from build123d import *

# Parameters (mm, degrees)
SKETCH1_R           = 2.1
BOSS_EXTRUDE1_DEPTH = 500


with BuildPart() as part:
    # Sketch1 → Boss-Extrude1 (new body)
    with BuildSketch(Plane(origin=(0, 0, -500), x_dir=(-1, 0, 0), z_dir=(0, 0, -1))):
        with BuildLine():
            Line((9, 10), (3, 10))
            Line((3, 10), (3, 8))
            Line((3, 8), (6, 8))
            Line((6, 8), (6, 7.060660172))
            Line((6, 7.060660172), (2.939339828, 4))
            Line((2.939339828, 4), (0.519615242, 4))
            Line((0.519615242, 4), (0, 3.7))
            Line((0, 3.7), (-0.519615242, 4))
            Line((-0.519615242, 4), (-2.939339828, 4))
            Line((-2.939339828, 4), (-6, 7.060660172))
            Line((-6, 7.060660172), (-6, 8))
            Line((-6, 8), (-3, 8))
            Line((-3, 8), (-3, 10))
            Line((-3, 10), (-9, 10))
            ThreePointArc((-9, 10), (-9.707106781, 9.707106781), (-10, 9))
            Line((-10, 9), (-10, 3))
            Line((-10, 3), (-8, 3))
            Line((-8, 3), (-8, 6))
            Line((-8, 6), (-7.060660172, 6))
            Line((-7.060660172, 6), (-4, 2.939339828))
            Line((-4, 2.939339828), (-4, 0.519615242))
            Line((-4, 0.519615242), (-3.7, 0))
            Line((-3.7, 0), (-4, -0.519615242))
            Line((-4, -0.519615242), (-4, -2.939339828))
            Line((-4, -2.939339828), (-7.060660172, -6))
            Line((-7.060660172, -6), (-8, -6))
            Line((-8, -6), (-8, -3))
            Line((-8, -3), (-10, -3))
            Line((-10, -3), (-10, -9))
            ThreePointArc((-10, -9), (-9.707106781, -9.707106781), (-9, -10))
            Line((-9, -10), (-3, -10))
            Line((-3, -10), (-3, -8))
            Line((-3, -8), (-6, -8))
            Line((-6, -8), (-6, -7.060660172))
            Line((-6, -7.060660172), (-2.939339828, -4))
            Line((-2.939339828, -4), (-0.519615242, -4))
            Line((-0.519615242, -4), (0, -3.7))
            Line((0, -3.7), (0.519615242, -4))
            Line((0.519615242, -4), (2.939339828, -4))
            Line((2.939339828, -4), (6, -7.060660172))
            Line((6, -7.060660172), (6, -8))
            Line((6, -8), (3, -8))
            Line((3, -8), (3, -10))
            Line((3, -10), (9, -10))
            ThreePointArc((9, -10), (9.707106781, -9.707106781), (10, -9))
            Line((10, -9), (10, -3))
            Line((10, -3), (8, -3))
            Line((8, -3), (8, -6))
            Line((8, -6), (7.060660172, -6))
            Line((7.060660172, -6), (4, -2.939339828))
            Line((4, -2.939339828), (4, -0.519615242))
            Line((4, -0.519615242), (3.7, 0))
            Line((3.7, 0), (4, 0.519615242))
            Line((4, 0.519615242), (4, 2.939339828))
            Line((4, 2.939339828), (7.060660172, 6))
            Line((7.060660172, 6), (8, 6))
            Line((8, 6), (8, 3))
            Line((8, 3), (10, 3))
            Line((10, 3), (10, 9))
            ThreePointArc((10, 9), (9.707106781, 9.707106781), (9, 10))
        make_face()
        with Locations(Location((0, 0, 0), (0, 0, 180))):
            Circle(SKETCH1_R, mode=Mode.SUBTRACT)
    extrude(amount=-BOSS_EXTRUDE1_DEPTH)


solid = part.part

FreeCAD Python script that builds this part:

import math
import FreeCAD as App
import Part
import Sketcher

V = App.Vector
Q = App.Units.Quantity

doc = App.newDocument("Part")
params = doc.addObject("Spreadsheet::Sheet", "Params")
for row, (alias, value) in enumerate([
    ("sketch1_radius", "1 mm"),
    ("sketch1_diameter", "4.2 mm"),
    ("sketch1_width", "6 mm"),
    ("sketch1_width2", "3 mm"),
    ("sketch1_width3", "2 mm"),
    ("pad1_length", "500 mm"),
], start=1):
    params.set(f"A{row}", alias)
    params.set(f"B{row}", "=" + value)
    params.setAlias(f"B{row}", alias)

body = doc.addObject("PartDesign::Body", "Body")

sketch1 = body.newObject("Sketcher::SketchObject", "Sketch")
sketch1.AttachmentSupport = (doc.getObject("XY_Plane"), [""])
sketch1.MapMode = "FlatFace"
sketch1.AttachmentOffset = App.Placement(V(0, 0, -500), App.Rotation())
sketch1.addGeometry([
    Part.LineSegment(V(-9, 10, 0), V(-3, 10, 0)),
    Part.LineSegment(V(-3, 10, 0), V(-3, 8, 0)),
    Part.LineSegment(V(-3, 8, 0), V(-6, 8, 0)),
    Part.LineSegment(V(-6, 8, 0), V(-6, 7.1, 0)),
    Part.LineSegment(V(-6, 7.1, 0), V(-2.9, 4, 0)),
    Part.LineSegment(V(-2.9, 4, 0), V(-0.5, 4, 0)),
    Part.LineSegment(V(-0.5, 4, 0), V(0, 3.7, 0)),
    Part.LineSegment(V(0, 3.7, 0), V(0.5, 4, 0)),
    Part.LineSegment(V(0.5, 4, 0), V(2.9, 4, 0)),
    Part.LineSegment(V(2.9, 4, 0), V(6, 7.1, 0)),
    Part.LineSegment(V(6, 7.1, 0), V(6, 8, 0)),
    Part.LineSegment(V(6, 8, 0), V(3, 8, 0)),
    Part.LineSegment(V(3, 8, 0), V(3, 10, 0)),
    Part.LineSegment(V(3, 10, 0), V(9, 10, 0)),
    Part.ArcOfCircle(Part.Circle(V(9, 9, 0), V(0, 0, 1), 1), math.radians(0), math.radians(90)),
    Part.LineSegment(V(10, 9, 0), V(10, 3, 0)),
    Part.LineSegment(V(10, 3, 0), V(8, 3, 0)),
    Part.LineSegment(V(8, 3, 0), V(8, 6, 0)),
    Part.LineSegment(V(8, 6, 0), V(7.1, 6, 0)),
    Part.LineSegment(V(7.1, 6, 0), V(4, 2.9, 0)),
    Part.LineSegment(V(4, 2.9, 0), V(4, 0.5, 0)),
    Part.LineSegment(V(4, 0.5, 0), V(3.7, 0, 0)),
    Part.LineSegment(V(3.7, 0, 0), V(4, -0.5, 0)),
    Part.LineSegment(V(4, -0.5, 0), V(4, -2.9, 0)),
    Part.LineSegment(V(4, -2.9, 0), V(7.1, -6, 0)),
    Part.LineSegment(V(7.1, -6, 0), V(8, -6, 0)),
    Part.LineSegment(V(8, -6, 0), V(8, -3, 0)),
    Part.LineSegment(V(8, -3, 0), V(10, -3, 0)),
    Part.LineSegment(V(10, -3, 0), V(10, -9, 0)),
    Part.ArcOfCircle(Part.Circle(V(9, -9, 0), V(0, 0, 1), 1), math.radians(-90), math.radians(0)),
    Part.LineSegment(V(9, -10, 0), V(3, -10, 0)),
    Part.LineSegment(V(3, -10, 0), V(3, -8, 0)),
    Part.LineSegment(V(3, -8, 0), V(6, -8, 0)),
    Part.LineSegment(V(6, -8, 0), V(6, -7.1, 0)),
    Part.LineSegment(V(6, -7.1, 0), V(2.9, -4, 0)),
    Part.LineSegment(V(2.9, -4, 0), V(0.5, -4, 0)),
    Part.LineSegment(V(0.5, -4, 0), V(0, -3.7, 0)),
    Part.LineSegment(V(0, -3.7, 0), V(-0.5, -4, 0)),
    Part.LineSegment(V(-0.5, -4, 0), V(-2.9, -4, 0)),
    Part.LineSegment(V(-2.9, -4, 0), V(-6, -7.1, 0)),
    Part.LineSegment(V(-6, -7.1, 0), V(-6, -8, 0)),
    Part.LineSegment(V(-6, -8, 0), V(-3, -8, 0)),
    Part.LineSegment(V(-3, -8, 0), V(-3, -10, 0)),
    Part.LineSegment(V(-3, -10, 0), V(-9, -10, 0)),
    Part.ArcOfCircle(Part.Circle(V(-9, -9, 0), V(0, 0, 1), 1), math.radians(-180), math.radians(-90)),
    Part.LineSegment(V(-10, -9, 0), V(-10, -3, 0)),
    Part.LineSegment(V(-10, -3, 0), V(-8, -3, 0)),
    Part.LineSegment(V(-8, -3, 0), V(-8, -6, 0)),
    Part.LineSegment(V(-8, -6, 0), V(-7.1, -6, 0)),
    Part.LineSegment(V(-7.1, -6, 0), V(-4, -2.9, 0)),
    Part.LineSegment(V(-4, -2.9, 0), V(-4, -0.5, 0)),
    Part.LineSegment(V(-4, -0.5, 0), V(-3.7, 0, 0)),
    Part.LineSegment(V(-3.7, 0, 0), V(-4, 0.5, 0)),
    Part.LineSegment(V(-4, 0.5, 0), V(-4, 2.9, 0)),
    Part.LineSegment(V(-4, 2.9, 0), V(-7.1, 6, 0)),
    Part.LineSegment(V(-7.1, 6, 0), V(-8, 6, 0)),
    Part.LineSegment(V(-8, 6, 0), V(-8, 3, 0)),
    Part.LineSegment(V(-8, 3, 0), V(-10, 3, 0)),
    Part.LineSegment(V(-10, 3, 0), V(-10, 9, 0)),
    Part.ArcOfCircle(Part.Circle(V(-9, 9, 0), V(0, 0, 1), 1), math.radians(90), math.radians(180)),
    Part.Circle(V(0, 0, 0), V(0, 0, 1), 2.1),
], False)
sketch1.addConstraint([
    Sketcher.Constraint("Coincident", 0, 2, 1, 1),
    Sketcher.Constraint("Coincident", 1, 2, 2, 1),
    Sketcher.Constraint("Coincident", 2, 2, 3, 1),
    Sketcher.Constraint("Coincident", 3, 2, 4, 1),
    Sketcher.Constraint("Coincident", 4, 2, 5, 1),
    Sketcher.Constraint("Coincident", 5, 2, 6, 1),
    Sketcher.Constraint("Coincident", 6, 2, 7, 1),
    Sketcher.Constraint("Coincident", 7, 2, 8, 1),
    Sketcher.Constraint("Coincident", 8, 2, 9, 1),
    Sketcher.Constraint("Coincident", 9, 2, 10, 1),
    Sketcher.Constraint("Coincident", 10, 2, 11, 1),
    Sketcher.Constraint("Coincident", 11, 2, 12, 1),
    Sketcher.Constraint("Coincident", 12, 2, 13, 1),
    Sketcher.Constraint("Tangent", 13, 2, 14, 2),
    Sketcher.Constraint("Tangent", 14, 1, 15, 1),
    Sketcher.Constraint("Coincident", 15, 2, 16, 1),
    Sketcher.Constraint("Coincident", 16, 2, 17, 1),
    Sketcher.Constraint("Coincident", 17, 2, 18, 1),
    Sketcher.Constraint("Coincident", 18, 2, 19, 1),
    Sketcher.Constraint("Coincident", 19, 2, 20, 1),
    Sketcher.Constraint("Coincident", 20, 2, 21, 1),
    Sketcher.Constraint("Coincident", 21, 2, 22, 1),
    Sketcher.Constraint("Coincident", 22, 2, 23, 1),
    Sketcher.Constraint("Coincident", 23, 2, 24, 1),
    Sketcher.Constraint("Coincident", 24, 2, 25, 1),
    Sketcher.Constraint("Coincident", 25, 2, 26, 1),
    Sketcher.Constraint("Coincident", 26, 2, 27, 1),
    Sketcher.Constraint("Coincident", 27, 2, 28, 1),
    Sketcher.Constraint("Tangent", 28, 2, 29, 2),
    Sketcher.Constraint("Tangent", 29, 1, 30, 1),
    Sketcher.Constraint("Coincident", 30, 2, 31, 1),
    Sketcher.Constraint("Coincident", 31, 2, 32, 1),
    Sketcher.Constraint("Coincident", 32, 2, 33, 1),
    Sketcher.Constraint("Coincident", 33, 2, 34, 1),
    Sketcher.Constraint("Coincident", 34, 2, 35, 1),
    Sketcher.Constraint("Coincident", 35, 2, 36, 1),
    Sketcher.Constraint("Coincident", 36, 2, 37, 1),
    Sketcher.Constraint("Coincident", 37, 2, 38, 1),
    Sketcher.Constraint("Coincident", 38, 2, 39, 1),
    Sketcher.Constraint("Coincident", 39, 2, 40, 1),
    Sketcher.Constraint("Coincident", 40, 2, 41, 1),
    Sketcher.Constraint("Coincident", 41, 2, 42, 1),
    Sketcher.Constraint("Coincident", 42, 2, 43, 1),
    Sketcher.Constraint("Tangent", 43, 2, 44, 2),
    Sketcher.Constraint("Tangent", 44, 1, 45, 1),
    Sketcher.Constraint("Coincident", 45, 2, 46, 1),
    Sketcher.Constraint("Coincident", 46, 2, 47, 1),
    Sketcher.Constraint("Coincident", 47, 2, 48, 1),
    Sketcher.Constraint("Coincident", 48, 2, 49, 1),
    Sketcher.Constraint("Coincident", 49, 2, 50, 1),
    Sketcher.Constraint("Coincident", 50, 2, 51, 1),
    Sketcher.Constraint("Coincident", 51, 2, 52, 1),
    Sketcher.Constraint("Coincident", 52, 2, 53, 1),
    Sketcher.Constraint("Coincident", 53, 2, 54, 1),
    Sketcher.Constraint("Coincident", 54, 2, 55, 1),
    Sketcher.Constraint("Coincident", 55, 2, 56, 1),
    Sketcher.Constraint("Coincident", 56, 2, 57, 1),
    Sketcher.Constraint("Coincident", 57, 2, 58, 1),
    Sketcher.Constraint("Tangent", 58, 2, 59, 2),
    Sketcher.Constraint("Tangent", 59, 1, 0, 1),
    Sketcher.Constraint("Horizontal", 0),
    Sketcher.Constraint("Vertical", 1),
    Sketcher.Constraint("Horizontal", 2),
    Sketcher.Constraint("Vertical", 3),
    Sketcher.Constraint("Horizontal", 5),
    Sketcher.Constraint("Horizontal", 8),
    Sketcher.Constraint("Vertical", 10),
    Sketcher.Constraint("Horizontal", 11),
    Sketcher.Constraint("Vertical", 12),
    Sketcher.Constraint("Horizontal", 13),
    Sketcher.Constraint("Vertical", 15),
    Sketcher.Constraint("Horizontal", 16),
    Sketcher.Constraint("Vertical", 17),
    Sketcher.Constraint("Horizontal", 18),
    Sketcher.Constraint("Vertical", 20),
    Sketcher.Constraint("Vertical", 23),
    Sketcher.Constraint("Horizontal", 25),
    Sketcher.Constraint("Vertical", 26),
    Sketcher.Constraint("Horizontal", 27),
    Sketcher.Constraint("Vertical", 28),
    Sketcher.Constraint("Horizontal", 30),
    Sketcher.Constraint("Vertical", 31),
    Sketcher.Constraint("Horizontal", 32),
    Sketcher.Constraint("Vertical", 33),
    Sketcher.Constraint("Horizontal", 35),
    Sketcher.Constraint("Horizontal", 38),
    Sketcher.Constraint("Vertical", 40),
    Sketcher.Constraint("Horizontal", 41),
    Sketcher.Constraint("Vertical", 42),
    Sketcher.Constraint("Horizontal", 43),
    Sketcher.Constraint("Vertical", 45),
    Sketcher.Constraint("Horizontal", 46),
    Sketcher.Constraint("Vertical", 47),
    Sketcher.Constraint("Horizontal", 48),
    Sketcher.Constraint("Vertical", 50),
    Sketcher.Constraint("Vertical", 53),
    Sketcher.Constraint("Horizontal", 55),
    Sketcher.Constraint("Vertical", 56),
    Sketcher.Constraint("Horizontal", 57),
    Sketcher.Constraint("Vertical", 58),
    Sketcher.Constraint("Coincident", 60, 3, -1, 1),
    Sketcher.Constraint("Equal", 14, 29),
    Sketcher.Constraint("Equal", 29, 44),
    Sketcher.Constraint("Equal", 44, 59),
    Sketcher.Constraint("Symmetric", 14, 3, 44, 3, -1, 1),
    Sketcher.Constraint("Symmetric", 29, 3, 59, 3, -1, 1),
    Sketcher.Constraint("Symmetric", 1, 2, 31, 2, -1, 1),
    Sketcher.Constraint("Symmetric", 3, 2, 33, 2, -1, 1),
    Sketcher.Constraint("Symmetric", 4, 2, 34, 2, -1, 1),
    Sketcher.Constraint("Symmetric", 6, 2, 36, 2, -1, 1),
    Sketcher.Constraint("Symmetric", 7, 2, 37, 2, -1, 1),
    Sketcher.Constraint("Symmetric", 9, 2, 39, 2, -1, 1),
    Sketcher.Constraint("Symmetric", 11, 2, 41, 2, -1, 1),
    Sketcher.Constraint("Symmetric", 16, 2, 46, 2, -1, 1),
    Sketcher.Constraint("Symmetric", 18, 2, 48, 2, -1, 1),
    Sketcher.Constraint("Symmetric", 19, 2, 49, 2, -1, 1),
    Sketcher.Constraint("Symmetric", 21, 2, 51, 2, -1, 1),
    Sketcher.Constraint("Symmetric", 22, 2, 52, 2, -1, 1),
    Sketcher.Constraint("Symmetric", 24, 2, 54, 2, -1, 1),
    Sketcher.Constraint("Symmetric", 26, 2, 56, 2, -1, 1),
    Sketcher.Constraint("Symmetric", 29, 3, 44, 3, -2),
    Sketcher.Constraint("Symmetric", 5, 2, 7, 2, -2),
    Sketcher.Constraint("Symmetric", 3, 2, 9, 2, -2),
    Sketcher.Constraint("Symmetric", 1, 2, 11, 2, -2),
    Sketcher.Constraint("Symmetric", 26, 2, 46, 2, -2),
    Sketcher.Constraint("Symmetric", 24, 2, 48, 2, -2),
    Sketcher.Constraint("Symmetric", 23, 2, 49, 2, -2),
    Sketcher.Constraint("PointOnObject", 6, 2, -2),
    Sketcher.Constraint("PointOnObject", 21, 2, -1),
    Sketcher.Constraint("Perpendicular", 4, 9),
    Sketcher.Constraint("Parallel", 9, 19),
    Sketcher.Constraint("Perpendicular", 6, 21),
    Sketcher.Constraint("Perpendicular", 7, 22),
    Sketcher.Constraint("Perpendicular", 19, 24),
    Sketcher.Constraint("Perpendicular", 21, 36),
    Sketcher.Constraint("Perpendicular", 34, 39),
    Sketcher.Constraint("Perpendicular", 36, 51),
    Sketcher.Constraint("Perpendicular", 49, 54),
    Sketcher.Constraint("Equal", 57, 1),
    Sketcher.Constraint("Equal", 55, 3),
    Sketcher.Constraint("Equal", 43, 15),
    Sketcher.Constraint("Equal", 41, 17),
    Sketcher.Constraint("Equal", 38, 20),
    Sketcher.Constraint("Equal", 9, 19),
    Sketcher.Constraint("Equal", 7, 21),
    Sketcher.Constraint("Radius", 14, Q("1 mm")),
    Sketcher.Constraint("Diameter", 60, Q("4.2 mm")),
    Sketcher.Constraint("DistanceX", 0, 1, 0, 2, Q("6 mm")),
    Sketcher.Constraint("DistanceX", 2, 2, 2, 1, Q("3 mm")),
    Sketcher.Constraint("DistanceX", 16, 2, 16, 1, Q("2 mm")),
    Sketcher.Constraint("Angle", 6, Q("-30 deg")),
    Sketcher.Constraint("DistanceX", -1, 1, 14, 3, Q("9 mm")),
    Sketcher.Constraint("DistanceY", -1, 1, 4, 2, Q("4 mm")),
    Sketcher.Constraint("Distance", 6, Q("0.6 mm")),
    Sketcher.Constraint("DistanceX", 18, 2, 18, 1, Q("0.93934 mm")),
])
sketch1.setExpression("Constraints[145]", "Params.sketch1_radius")
sketch1.setExpression("Constraints[146]", "Params.sketch1_diameter")
sketch1.setExpression("Constraints[147]", "Params.sketch1_width")
sketch1.setExpression("Constraints[148]", "Params.sketch1_width2")
sketch1.setExpression("Constraints[149]", "Params.sketch1_width3")
pad1 = body.newObject("PartDesign::Pad", "Pad")
pad1.Profile = sketch1
pad1.setExpression("Length", "Params.pad1_length")

doc.recompute()
